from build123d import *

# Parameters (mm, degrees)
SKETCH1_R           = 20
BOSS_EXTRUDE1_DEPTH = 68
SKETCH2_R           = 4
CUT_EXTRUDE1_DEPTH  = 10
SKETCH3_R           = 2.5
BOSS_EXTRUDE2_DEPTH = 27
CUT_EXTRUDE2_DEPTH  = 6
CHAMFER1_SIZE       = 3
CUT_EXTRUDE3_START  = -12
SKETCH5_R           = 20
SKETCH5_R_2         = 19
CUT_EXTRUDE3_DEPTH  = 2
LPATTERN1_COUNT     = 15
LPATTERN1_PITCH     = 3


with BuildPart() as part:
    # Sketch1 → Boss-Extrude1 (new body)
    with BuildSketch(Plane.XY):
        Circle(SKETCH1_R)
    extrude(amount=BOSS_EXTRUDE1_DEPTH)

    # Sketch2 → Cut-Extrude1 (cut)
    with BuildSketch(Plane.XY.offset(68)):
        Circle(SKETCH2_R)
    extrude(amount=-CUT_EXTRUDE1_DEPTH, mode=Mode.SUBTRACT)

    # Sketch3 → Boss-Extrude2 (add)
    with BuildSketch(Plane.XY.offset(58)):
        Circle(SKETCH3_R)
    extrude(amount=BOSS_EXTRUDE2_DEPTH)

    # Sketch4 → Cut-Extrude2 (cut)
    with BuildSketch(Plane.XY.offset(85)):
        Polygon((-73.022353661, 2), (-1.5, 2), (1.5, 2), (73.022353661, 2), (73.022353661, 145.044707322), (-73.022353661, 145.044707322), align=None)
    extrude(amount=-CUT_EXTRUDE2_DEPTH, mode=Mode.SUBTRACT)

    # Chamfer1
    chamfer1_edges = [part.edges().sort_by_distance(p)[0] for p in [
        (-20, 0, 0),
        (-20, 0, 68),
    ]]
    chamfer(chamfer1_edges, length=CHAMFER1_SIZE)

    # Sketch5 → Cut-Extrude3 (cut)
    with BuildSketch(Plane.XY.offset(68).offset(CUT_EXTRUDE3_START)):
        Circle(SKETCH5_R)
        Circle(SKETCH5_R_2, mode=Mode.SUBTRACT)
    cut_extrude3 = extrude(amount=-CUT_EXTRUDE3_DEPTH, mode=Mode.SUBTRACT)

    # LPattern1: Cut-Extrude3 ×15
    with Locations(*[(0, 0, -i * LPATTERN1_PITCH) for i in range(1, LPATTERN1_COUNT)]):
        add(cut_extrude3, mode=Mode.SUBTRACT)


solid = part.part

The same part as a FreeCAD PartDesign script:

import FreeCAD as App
import Part
import Sketcher


def edges_at(feature, points):
    """Names of the edges that pass closest to the given points."""
    edges = feature.Shape.Edges
    near = lambda p: min(range(len(edges)), key=lambda i: edges[i].distToShape(Part.Vertex(*p))[0])
    return sorted({f"Edge{near(p) + 1}" for p in points})


def add_polygon(sketch, points):
    """Adds a closed chain of lines whose ends are joined by coincident constraints."""
    first, n = sketch.GeometryCount, len(points)
    for a, b in zip(points, points[1:] + points[:1]):
        sketch.addGeometry(Part.LineSegment(App.Vector(*a, 0), App.Vector(*b, 0)), False)
    for i in range(n):
        sketch.addConstraint(Sketcher.Constraint("Coincident", first + i, 2, first + (i + 1) % n, 1))

doc = App.newDocument("Part")
params = doc.addObject("Spreadsheet::Sheet", "Params")
for row, (alias, value) in enumerate([
    ("sketch1_diameter", "40 mm"),
    ("pad1_length", "68 mm"),
    ("sketch2_diameter", "8 mm"),
    ("pocket1_length", "10 mm"),
    ("sketch3_diameter", "5 mm"),
    ("pad2_length", "27 mm"),
    ("pocket2_length", "6 mm"),
    ("chamfer_size", "3 mm"),
    ("sketch5_diameter", "40 mm"),
    ("sketch5_diameter2", "38 mm"),
    ("pocket3_length", "2 mm"),
    ("linearpattern_pitch", "3 mm"),
], start=1):
    params.set(f"A{row}", alias)
    params.set(f"B{row}", "=" + value)
    params.setAlias(f"B{row}", alias)

body = doc.addObject("PartDesign::Body", "Body")

# Sketch on XY plane
sketch1 = body.newObject("Sketcher::SketchObject", "Sketch")
sketch1.AttachmentSupport = (doc.getObject("XY_Plane"), [""])
sketch1.MapMode = "FlatFace"
sketch1.addGeometry(Part.Circle(App.Vector(0, 0, 0), App.Vector(0, 0, 1), 20), False)
sketch1.addConstraint(Sketcher.Constraint("Coincident", 0, 3, -1, 1))
sketch1.addConstraint(Sketcher.Constraint("Diameter", 0, 40.0))
sketch1.setExpression("Constraints[1]", "Params.sketch1_diameter")
pad1 = body.newObject("PartDesign::Pad", "Pad")
pad1.Profile = sketch1
pad1.setExpression("Length", "Params.pad1_length")

# Sketch on XY plane
sketch2 = body.newObject("Sketcher::SketchObject", "Sketch001")
sketch2.AttachmentSupport = (doc.getObject("XY_Plane"), [""])
sketch2.MapMode = "FlatFace"
sketch2.AttachmentOffset = App.Placement(App.Vector(0, 0, 68), App.Rotation())
sketch2.addGeometry(Part.Circle(App.Vector(0, 0, 0), App.Vector(0, 0, 1), 4), False)
sketch2.addConstraint(Sketcher.Constraint("Coincident", 0, 3, -1, 1))
sketch2.addConstraint(Sketcher.Constraint("Diameter", 0, 8.0))
sketch2.setExpression("Constraints[1]", "Params.sketch2_diameter")
pocket1 = body.newObject("PartDesign::Pocket", "Pocket")
pocket1.Profile = sketch2
pocket1.setExpression("Length", "Params.pocket1_length")

# Sketch on XY plane
sketch3 = body.newObject("Sketcher::SketchObject", "Sketch002")
sketch3.AttachmentSupport = (doc.getObject("XY_Plane"), [""])
sketch3.MapMode = "FlatFace"
sketch3.AttachmentOffset = App.Placement(App.Vector(0, 0, 58), App.Rotation())
sketch3.addGeometry(Part.Circle(App.Vector(0, 0, 0), App.Vector(0, 0, 1), 2.5), False)
sketch3.addConstraint(Sketcher.Constraint("Coincident", 0, 3, -1, 1))
sketch3.addConstraint(Sketcher.Constraint("Diameter", 0, 5.0))
sketch3.setExpression("Constraints[1]", "Params.sketch3_diameter")
pad2 = body.newObject("PartDesign::Pad", "Pad001")
pad2.Profile = sketch3
pad2.setExpression("Length", "Params.pad2_length")

# Sketch on XY plane
sketch4 = body.newObject("Sketcher::SketchObject", "Sketch003")
sketch4.AttachmentSupport = (doc.getObject("XY_Plane"), [""])
sketch4.MapMode = "FlatFace"
sketch4.AttachmentOffset = App.Placement(App.Vector(0, 0, 85), App.Rotation())
add_polygon(sketch4, [(-73.022354, 2), (73.022354, 2), (73.022354, 145.044707), (-73.022354, 145.044707)])  # lines 0-3
sketch4.addConstraint(Sketcher.Constraint("Horizontal", 0))
sketch4.addConstraint(Sketcher.Constraint("Vertical", 1))
sketch4.addConstraint(Sketcher.Constraint("Horizontal", 2))
sketch4.addConstraint(Sketcher.Constraint("Vertical", 3))
sketch4.addConstraint(Sketcher.Constraint("DistanceY", -1, 1, 0, 2, 2.0))
sketch4.addConstraint(Sketcher.Constraint("DistanceX", 0, 1, 0, 2, 146.044707))
sketch4.addConstraint(Sketcher.Constraint("DistanceY", 1, 1, 1, 2, 143.044707))
sketch4.addConstraint(Sketcher.Constraint("DistanceX", -1, 1, 0, 2, 73.022354))
pocket2 = body.newObject("PartDesign::Pocket", "Pocket001")
pocket2.Profile = sketch4
pocket2.setExpression("Length", "Params.pocket2_length")
doc.recompute()

chamfer = body.newObject("PartDesign::Chamfer", "Chamfer")
chamfer.Base = (pocket2, edges_at(pocket2, [(-20, 0, 0), (-20, 0, 68)]))
chamfer.setExpression("Size", "Params.chamfer_size")

# Sketch on XY plane
sketch5 = body.newObject("Sketcher::SketchObject", "Sketch004")
sketch5.AttachmentSupport = (doc.getObject("XY_Plane"), [""])
sketch5.MapMode = "FlatFace"
sketch5.AttachmentOffset = App.Placement(App.Vector(0, 0, 56), App.Rotation())
sketch5.addGeometry(Part.Circle(App.Vector(0, 0, 0), App.Vector(0, 0, 1), 20), False)
sketch5.addGeometry(Part.Circle(App.Vector(0, 0, 0), App.Vector(0, 0, 1), 19), False)
sketch5.addConstraint(Sketcher.Constraint("Coincident", 0, 3, -1, 1))
sketch5.addConstraint(Sketcher.Constraint("Coincident", 1, 3, -1, 1))
sketch5.addConstraint(Sketcher.Constraint("Diameter", 0, 40.0))
sketch5.addConstraint(Sketcher.Constraint("Diameter", 1, 38.0))
sketch5.setExpression("Constraints[2]", "Params.sketch5_diameter")
sketch5.setExpression("Constraints[3]", "Params.sketch5_diameter2")
pocket3 = body.newObject("PartDesign::Pocket", "Pocket002")
pocket3.Profile = sketch5
pocket3.setExpression("Length", "Params.pocket3_length")
doc.recompute()

linearpattern = body.newObject("PartDesign::LinearPattern", "LinearPattern")
linearpattern.Originals = [pocket3]
linearpattern.Direction = (doc.getObject("Z_Axis"), [""])
linearpattern.Mode = "offset"
linearpattern.setExpression("Offset", "Params.linearpattern_pitch")
linearpattern.Occurrences = 15
linearpattern.Reversed = True
body.Tip = linearpattern

doc.recompute()
